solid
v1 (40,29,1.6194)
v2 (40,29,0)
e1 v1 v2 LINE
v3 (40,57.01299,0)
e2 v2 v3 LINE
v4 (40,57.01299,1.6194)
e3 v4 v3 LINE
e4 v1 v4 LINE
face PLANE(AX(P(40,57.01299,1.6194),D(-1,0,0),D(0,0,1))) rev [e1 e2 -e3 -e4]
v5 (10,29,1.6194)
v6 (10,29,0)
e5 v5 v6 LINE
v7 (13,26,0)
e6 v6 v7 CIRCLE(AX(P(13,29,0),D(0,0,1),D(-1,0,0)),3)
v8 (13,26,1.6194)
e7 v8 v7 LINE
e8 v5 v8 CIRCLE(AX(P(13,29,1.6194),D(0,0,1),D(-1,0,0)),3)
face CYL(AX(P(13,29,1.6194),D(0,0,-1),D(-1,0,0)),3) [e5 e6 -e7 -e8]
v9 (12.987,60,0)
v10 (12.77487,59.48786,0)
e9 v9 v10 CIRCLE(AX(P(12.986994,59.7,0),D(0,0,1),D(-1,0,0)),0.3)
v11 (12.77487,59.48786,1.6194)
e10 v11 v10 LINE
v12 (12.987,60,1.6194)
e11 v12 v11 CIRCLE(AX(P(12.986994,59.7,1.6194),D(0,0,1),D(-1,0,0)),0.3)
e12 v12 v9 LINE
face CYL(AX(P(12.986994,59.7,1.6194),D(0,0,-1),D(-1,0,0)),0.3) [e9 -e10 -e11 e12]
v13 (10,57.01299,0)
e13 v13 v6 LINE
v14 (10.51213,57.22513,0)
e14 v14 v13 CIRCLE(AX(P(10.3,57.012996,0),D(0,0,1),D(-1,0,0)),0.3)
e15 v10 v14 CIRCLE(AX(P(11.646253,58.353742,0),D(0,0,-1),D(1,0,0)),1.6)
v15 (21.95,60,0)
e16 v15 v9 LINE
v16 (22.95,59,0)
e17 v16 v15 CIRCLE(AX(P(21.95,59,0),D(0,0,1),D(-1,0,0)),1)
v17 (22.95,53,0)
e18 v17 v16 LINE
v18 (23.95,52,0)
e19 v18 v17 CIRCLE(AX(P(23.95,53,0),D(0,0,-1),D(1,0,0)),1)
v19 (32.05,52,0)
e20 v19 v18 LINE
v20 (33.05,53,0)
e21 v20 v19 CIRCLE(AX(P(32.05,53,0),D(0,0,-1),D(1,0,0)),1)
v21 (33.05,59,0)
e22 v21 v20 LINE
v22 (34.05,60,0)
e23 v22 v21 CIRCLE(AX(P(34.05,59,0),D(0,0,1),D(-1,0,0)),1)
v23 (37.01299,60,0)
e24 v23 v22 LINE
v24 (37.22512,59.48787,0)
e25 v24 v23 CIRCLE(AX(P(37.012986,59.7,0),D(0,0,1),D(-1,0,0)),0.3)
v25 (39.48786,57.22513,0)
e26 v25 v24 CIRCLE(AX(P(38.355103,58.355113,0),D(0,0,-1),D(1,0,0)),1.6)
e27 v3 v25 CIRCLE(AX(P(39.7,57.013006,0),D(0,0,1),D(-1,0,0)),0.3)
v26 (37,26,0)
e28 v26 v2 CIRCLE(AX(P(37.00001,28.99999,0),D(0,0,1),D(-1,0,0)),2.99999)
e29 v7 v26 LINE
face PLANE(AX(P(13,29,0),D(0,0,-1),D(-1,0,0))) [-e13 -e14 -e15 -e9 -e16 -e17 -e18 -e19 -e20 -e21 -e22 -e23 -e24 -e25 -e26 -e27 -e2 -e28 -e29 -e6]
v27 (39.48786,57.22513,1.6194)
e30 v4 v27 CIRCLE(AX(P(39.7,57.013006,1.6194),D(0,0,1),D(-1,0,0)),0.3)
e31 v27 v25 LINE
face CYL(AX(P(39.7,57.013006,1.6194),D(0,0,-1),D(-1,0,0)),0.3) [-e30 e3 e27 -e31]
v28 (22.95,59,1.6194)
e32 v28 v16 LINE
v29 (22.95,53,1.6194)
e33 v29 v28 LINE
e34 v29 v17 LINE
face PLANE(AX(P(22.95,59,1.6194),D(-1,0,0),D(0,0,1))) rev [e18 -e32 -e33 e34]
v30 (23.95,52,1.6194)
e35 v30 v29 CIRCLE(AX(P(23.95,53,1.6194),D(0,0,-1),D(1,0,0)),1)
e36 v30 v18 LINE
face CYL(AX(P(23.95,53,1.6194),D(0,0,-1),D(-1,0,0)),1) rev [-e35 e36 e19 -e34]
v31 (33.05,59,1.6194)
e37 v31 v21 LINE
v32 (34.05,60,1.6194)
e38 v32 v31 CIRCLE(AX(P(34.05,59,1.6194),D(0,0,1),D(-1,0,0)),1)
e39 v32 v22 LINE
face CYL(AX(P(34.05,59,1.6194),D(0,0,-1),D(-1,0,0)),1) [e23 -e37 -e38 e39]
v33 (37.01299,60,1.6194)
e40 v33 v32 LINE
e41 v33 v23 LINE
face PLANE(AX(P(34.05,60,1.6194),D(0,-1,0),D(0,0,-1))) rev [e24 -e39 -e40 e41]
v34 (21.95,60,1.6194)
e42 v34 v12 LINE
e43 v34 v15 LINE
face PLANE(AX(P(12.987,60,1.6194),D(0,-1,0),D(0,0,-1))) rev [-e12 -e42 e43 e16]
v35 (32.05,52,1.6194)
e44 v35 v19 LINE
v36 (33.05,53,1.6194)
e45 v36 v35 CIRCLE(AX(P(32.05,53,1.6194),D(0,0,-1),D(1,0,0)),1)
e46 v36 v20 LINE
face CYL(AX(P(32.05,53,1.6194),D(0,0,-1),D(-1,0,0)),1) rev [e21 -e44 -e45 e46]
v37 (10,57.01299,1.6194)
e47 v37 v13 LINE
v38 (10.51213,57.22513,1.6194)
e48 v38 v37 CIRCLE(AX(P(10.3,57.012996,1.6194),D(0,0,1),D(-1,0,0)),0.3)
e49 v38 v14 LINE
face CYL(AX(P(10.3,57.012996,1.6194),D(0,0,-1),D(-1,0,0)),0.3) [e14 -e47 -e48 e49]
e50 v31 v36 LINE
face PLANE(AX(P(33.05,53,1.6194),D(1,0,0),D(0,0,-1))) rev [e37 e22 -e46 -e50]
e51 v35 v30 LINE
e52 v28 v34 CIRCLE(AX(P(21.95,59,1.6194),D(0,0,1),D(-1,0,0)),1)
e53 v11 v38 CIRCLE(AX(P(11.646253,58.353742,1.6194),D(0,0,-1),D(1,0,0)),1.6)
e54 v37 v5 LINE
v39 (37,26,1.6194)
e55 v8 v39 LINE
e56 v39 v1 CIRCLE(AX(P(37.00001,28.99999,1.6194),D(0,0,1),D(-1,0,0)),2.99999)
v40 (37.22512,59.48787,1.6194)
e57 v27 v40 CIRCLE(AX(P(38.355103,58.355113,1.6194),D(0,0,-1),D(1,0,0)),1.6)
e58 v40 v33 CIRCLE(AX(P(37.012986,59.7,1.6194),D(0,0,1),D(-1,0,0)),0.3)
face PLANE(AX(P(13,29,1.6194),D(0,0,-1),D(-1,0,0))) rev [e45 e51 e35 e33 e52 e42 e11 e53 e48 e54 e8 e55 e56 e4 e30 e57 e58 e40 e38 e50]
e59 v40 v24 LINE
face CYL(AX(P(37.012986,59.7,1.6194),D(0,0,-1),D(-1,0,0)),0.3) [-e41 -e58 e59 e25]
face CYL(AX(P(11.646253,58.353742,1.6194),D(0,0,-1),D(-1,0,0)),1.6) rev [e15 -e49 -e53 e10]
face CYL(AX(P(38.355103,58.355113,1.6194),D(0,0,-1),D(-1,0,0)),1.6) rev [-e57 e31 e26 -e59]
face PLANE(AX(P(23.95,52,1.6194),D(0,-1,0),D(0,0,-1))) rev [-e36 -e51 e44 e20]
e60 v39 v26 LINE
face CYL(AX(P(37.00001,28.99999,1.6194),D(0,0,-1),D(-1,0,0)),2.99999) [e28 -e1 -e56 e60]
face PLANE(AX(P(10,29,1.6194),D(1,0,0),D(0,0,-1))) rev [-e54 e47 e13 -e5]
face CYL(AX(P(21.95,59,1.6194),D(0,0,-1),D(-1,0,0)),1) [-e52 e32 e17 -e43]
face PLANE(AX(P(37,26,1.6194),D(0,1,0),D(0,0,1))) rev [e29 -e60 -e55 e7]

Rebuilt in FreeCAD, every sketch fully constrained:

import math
import FreeCAD as App
import Part
import Sketcher
Q = App.Units.Quantity

doc = App.newDocument("Part")
params = doc.addObject("Spreadsheet::Sheet", "Params")
for row, (alias, value) in enumerate([
    ("sketch1_radius", "3 mm"),
    ("sketch1_radius2", "1 mm"),
    ("sketch1_radius3", "0.3 mm"),
    ("sketch1_radius4", "1.6 mm"),
    ("sketch1_width", "24 mm"),
    ("pad1_length", "1.6194 mm"),
], start=1):
    params.set(f"A{row}", alias)
    params.set(f"B{row}", "=" + value)
    params.setAlias(f"B{row}", alias)

body = doc.addObject("PartDesign::Body", "Body")

# Sketch on XY plane
sketch1 = body.newObject("Sketcher::SketchObject", "Sketch")
sketch1.AttachmentSupport = (doc.getObject("XY_Plane"), [""])
sketch1.MapMode = "FlatFace"
sketch1.addGeometry([
    Part.LineSegment(App.Vector(10, 57.01, 0), App.Vector(10, 29, 0)),  # 0
    Part.ArcOfCircle(Part.Circle(App.Vector(13, 29, 0), App.Vector(0, 0, 1), 3), math.radians(180), math.radians(270)),  # 1
    Part.LineSegment(App.Vector(13, 26, 0), App.Vector(37, 26, 0)),  # 2
    Part.ArcOfCircle(Part.Circle(App.Vector(37, 29, 0), App.Vector(0, 0, 1), 3), math.radians(-90), math.radians(0)),  # 3
    Part.LineSegment(App.Vector(40, 29, 0), App.Vector(40, 57.01, 0)),  # 4
    Part.ArcOfCircle(Part.Circle(App.Vector(39.7, 57.01, 0), App.Vector(0, 0, 1), 0.3), math.radians(0), math.radians(135)),  # 5
    Part.ArcOfCircle(Part.Circle(App.Vector(38.36, 58.36, 0), App.Vector(0, 0, 1), 1.6), math.radians(135), math.radians(315)),  # 6
    Part.ArcOfCircle(Part.Circle(App.Vector(37.01, 59.7, 0), App.Vector(0, 0, 1), 0.3), math.radians(-45), math.radians(90)),  # 7
    Part.LineSegment(App.Vector(37.01, 60, 0), App.Vector(34.05, 60, 0)),  # 8
    Part.ArcOfCircle(Part.Circle(App.Vector(34.05, 59, 0), App.Vector(0, 0, 1), 1), math.radians(90), math.radians(180)),  # 9
    Part.LineSegment(App.Vector(33.05, 59, 0), App.Vector(33.05, 53, 0)),  # 10
    Part.ArcOfCircle(Part.Circle(App.Vector(32.05, 53, 0), App.Vector(0, 0, 1), 1), math.radians(-90), math.radians(0)),  # 11
    Part.LineSegment(App.Vector(32.05, 52, 0), App.Vector(23.95, 52, 0)),  # 12
    Part.ArcOfCircle(Part.Circle(App.Vector(23.95, 53, 0), App.Vector(0, 0, 1), 1), math.radians(-180), math.radians(-90)),  # 13
    Part.LineSegment(App.Vector(22.95, 53, 0), App.Vector(22.95, 59, 0)),  # 14
    Part.ArcOfCircle(Part.Circle(App.Vector(21.95, 59, 0), App.Vector(0, 0, 1), 1), math.radians(0), math.radians(90)),  # 15
    Part.LineSegment(App.Vector(21.95, 60, 0), App.Vector(12.99, 60, 0)),  # 16
    Part.ArcOfCircle(Part.Circle(App.Vector(12.99, 59.7, 0), App.Vector(0, 0, 1), 0.3), math.radians(90), math.radians(225)),  # 17
    Part.ArcOfCircle(Part.Circle(App.Vector(11.65, 58.35, 0), App.Vector(0, 0, 1), 1.6), math.radians(-135), math.radians(45)),  # 18
    Part.ArcOfCircle(Part.Circle(App.Vector(10.3, 57.01, 0), App.Vector(0, 0, 1), 0.3), math.radians(45), math.radians(180)),  # 19
], False)
sketch1.addConstraint([
    Sketcher.Constraint("Tangent", 0, 2, 1, 1),
    Sketcher.Constraint("Tangent", 1, 2, 2, 1),
    Sketcher.Constraint("Coincident", 2, 2, 3, 1),
    Sketcher.Constraint("Coincident", 3, 2, 4, 1),
    Sketcher.Constraint("Coincident", 4, 2, 5, 1),
    Sketcher.Constraint("Coincident", 5, 2, 6, 2),
    Sketcher.Constraint("Coincident", 6, 1, 7, 1),
    Sketcher.Constraint("Coincident", 7, 2, 8, 1),
    Sketcher.Constraint("Tangent", 8, 2, 9, 1),
    Sketcher.Constraint("Tangent", 9, 2, 10, 1),
    Sketcher.Constraint("Tangent", 10, 2, 11, 2),
    Sketcher.Constraint("Tangent", 11, 1, 12, 1),
    Sketcher.Constraint("Tangent", 12, 2, 13, 2),
    Sketcher.Constraint("Tangent", 13, 1, 14, 1),
    Sketcher.Constraint("Tangent", 14, 2, 15, 1),
    Sketcher.Constraint("Tangent", 15, 2, 16, 1),
    Sketcher.Constraint("Coincident", 16, 2, 17, 1),
    Sketcher.Constraint("Coincident", 17, 2, 18, 2),
    Sketcher.Constraint("Coincident", 18, 1, 19, 1),
    Sketcher.Constraint("Coincident", 19, 2, 0, 1),
    Sketcher.Constraint("Vertical", 0),
    Sketcher.Constraint("Horizontal", 2),
    Sketcher.Constraint("Vertical", 4),
    Sketcher.Constraint("Horizontal", 8),
    Sketcher.Constraint("Vertical", 10),
    Sketcher.Constraint("Horizontal", 12),
    Sketcher.Constraint("Vertical", 14),
    Sketcher.Constraint("Horizontal", 16),
    Sketcher.Constraint("Equal", 5, 7),
    Sketcher.Constraint("Equal", 9, 11),
    Sketcher.Constraint("Equal", 11, 13),
    Sketcher.Constraint("Equal", 13, 15),
    Sketcher.Constraint("Equal", 7, 17),
    Sketcher.Constraint("Equal", 6, 18),
    Sketcher.Constraint("Equal", 17, 19),
    Sketcher.Constraint("Horizontal", 9, 3, 15, 3),
    Sketcher.Constraint("Horizontal", 0, 2, 3, 2),
    Sketcher.Constraint("Horizontal", 5, 2, 18, 1),
    Sketcher.Constraint("Horizontal", 4, 2, 19, 2),
    Sketcher.Constraint("Radius", 1, Q("3 mm")),
    Sketcher.Constraint("Radius", 9, Q("1 mm")),
    Sketcher.Constraint("Radius", 5, Q("0.3 mm")),
    Sketcher.Constraint("Radius", 6, Q("1.6 mm")),
    Sketcher.Constraint("DistanceX", 2, 1, 2, 2, Q("24 mm")),
    Sketcher.Constraint("DistanceY", 10, 2, 10, 1, Q("6 mm")),
    Sketcher.Constraint("DistanceX", 12, 2, 12, 1, Q("8.1 mm")),
    Sketcher.Constraint("DistanceX", -1, 1, 1, 3, Q("13 mm")),
    Sketcher.Constraint("DistanceY", -1, 1, 1, 3, Q("29 mm")),
    Sketcher.Constraint("DistanceY", -1, 1, 9, 3, Q("59 mm")),
    Sketcher.Constraint("DistanceX", -1, 1, 3, 2, Q("40 mm")),
    Sketcher.Constraint("DistanceX", 16, 2, 16, 1, Q("8.963 mm")),
    Sketcher.Constraint("DistanceX", -1, 1, 9, 3, Q("34.05 mm")),
    Sketcher.Constraint("Radius", 3, Q("2.99999 mm")),
    Sketcher.Constraint("DistanceX", 8, 2, 8, 1, Q("2.96299 mm")),
    Sketcher.Constraint("DistanceY", 0, 2, 0, 1, Q("28.01299 mm")),
    Sketcher.Constraint("DistanceY", -1, 1, 18, 3, Q("58.353742 mm")),
    Sketcher.Constraint("DistanceX", -1, 1, 5, 2, Q("39.48786 mm")),
    Sketcher.Constraint("DistanceY", -1, 1, 5, 2, Q("57.22513 mm")),
    Sketcher.Constraint("DistanceX", -1, 1, 6, 1, Q("37.22512 mm")),
    Sketcher.Constraint("DistanceX", -1, 1, 17, 2, Q("12.77487 mm")),
    Sketcher.Constraint("DistanceY", -1, 1, 17, 2, Q("59.48786 mm")),
    Sketcher.Constraint("DistanceX", -1, 1, 6, 3, Q("38.355103 mm")),
])
sketch1.setExpression("Constraints[39]", "Params.sketch1_radius")
sketch1.setExpression("Constraints[40]", "Params.sketch1_radius2")
sketch1.setExpression("Constraints[41]", "Params.sketch1_radius3")
sketch1.setExpression("Constraints[42]", "Params.sketch1_radius4")
sketch1.setExpression("Constraints[43]", "Params.sketch1_width")
pad1 = body.newObject("PartDesign::Pad", "Pad")
pad1.Profile = sketch1
pad1.setExpression("Length", "Params.pad1_length")

doc.recompute()
